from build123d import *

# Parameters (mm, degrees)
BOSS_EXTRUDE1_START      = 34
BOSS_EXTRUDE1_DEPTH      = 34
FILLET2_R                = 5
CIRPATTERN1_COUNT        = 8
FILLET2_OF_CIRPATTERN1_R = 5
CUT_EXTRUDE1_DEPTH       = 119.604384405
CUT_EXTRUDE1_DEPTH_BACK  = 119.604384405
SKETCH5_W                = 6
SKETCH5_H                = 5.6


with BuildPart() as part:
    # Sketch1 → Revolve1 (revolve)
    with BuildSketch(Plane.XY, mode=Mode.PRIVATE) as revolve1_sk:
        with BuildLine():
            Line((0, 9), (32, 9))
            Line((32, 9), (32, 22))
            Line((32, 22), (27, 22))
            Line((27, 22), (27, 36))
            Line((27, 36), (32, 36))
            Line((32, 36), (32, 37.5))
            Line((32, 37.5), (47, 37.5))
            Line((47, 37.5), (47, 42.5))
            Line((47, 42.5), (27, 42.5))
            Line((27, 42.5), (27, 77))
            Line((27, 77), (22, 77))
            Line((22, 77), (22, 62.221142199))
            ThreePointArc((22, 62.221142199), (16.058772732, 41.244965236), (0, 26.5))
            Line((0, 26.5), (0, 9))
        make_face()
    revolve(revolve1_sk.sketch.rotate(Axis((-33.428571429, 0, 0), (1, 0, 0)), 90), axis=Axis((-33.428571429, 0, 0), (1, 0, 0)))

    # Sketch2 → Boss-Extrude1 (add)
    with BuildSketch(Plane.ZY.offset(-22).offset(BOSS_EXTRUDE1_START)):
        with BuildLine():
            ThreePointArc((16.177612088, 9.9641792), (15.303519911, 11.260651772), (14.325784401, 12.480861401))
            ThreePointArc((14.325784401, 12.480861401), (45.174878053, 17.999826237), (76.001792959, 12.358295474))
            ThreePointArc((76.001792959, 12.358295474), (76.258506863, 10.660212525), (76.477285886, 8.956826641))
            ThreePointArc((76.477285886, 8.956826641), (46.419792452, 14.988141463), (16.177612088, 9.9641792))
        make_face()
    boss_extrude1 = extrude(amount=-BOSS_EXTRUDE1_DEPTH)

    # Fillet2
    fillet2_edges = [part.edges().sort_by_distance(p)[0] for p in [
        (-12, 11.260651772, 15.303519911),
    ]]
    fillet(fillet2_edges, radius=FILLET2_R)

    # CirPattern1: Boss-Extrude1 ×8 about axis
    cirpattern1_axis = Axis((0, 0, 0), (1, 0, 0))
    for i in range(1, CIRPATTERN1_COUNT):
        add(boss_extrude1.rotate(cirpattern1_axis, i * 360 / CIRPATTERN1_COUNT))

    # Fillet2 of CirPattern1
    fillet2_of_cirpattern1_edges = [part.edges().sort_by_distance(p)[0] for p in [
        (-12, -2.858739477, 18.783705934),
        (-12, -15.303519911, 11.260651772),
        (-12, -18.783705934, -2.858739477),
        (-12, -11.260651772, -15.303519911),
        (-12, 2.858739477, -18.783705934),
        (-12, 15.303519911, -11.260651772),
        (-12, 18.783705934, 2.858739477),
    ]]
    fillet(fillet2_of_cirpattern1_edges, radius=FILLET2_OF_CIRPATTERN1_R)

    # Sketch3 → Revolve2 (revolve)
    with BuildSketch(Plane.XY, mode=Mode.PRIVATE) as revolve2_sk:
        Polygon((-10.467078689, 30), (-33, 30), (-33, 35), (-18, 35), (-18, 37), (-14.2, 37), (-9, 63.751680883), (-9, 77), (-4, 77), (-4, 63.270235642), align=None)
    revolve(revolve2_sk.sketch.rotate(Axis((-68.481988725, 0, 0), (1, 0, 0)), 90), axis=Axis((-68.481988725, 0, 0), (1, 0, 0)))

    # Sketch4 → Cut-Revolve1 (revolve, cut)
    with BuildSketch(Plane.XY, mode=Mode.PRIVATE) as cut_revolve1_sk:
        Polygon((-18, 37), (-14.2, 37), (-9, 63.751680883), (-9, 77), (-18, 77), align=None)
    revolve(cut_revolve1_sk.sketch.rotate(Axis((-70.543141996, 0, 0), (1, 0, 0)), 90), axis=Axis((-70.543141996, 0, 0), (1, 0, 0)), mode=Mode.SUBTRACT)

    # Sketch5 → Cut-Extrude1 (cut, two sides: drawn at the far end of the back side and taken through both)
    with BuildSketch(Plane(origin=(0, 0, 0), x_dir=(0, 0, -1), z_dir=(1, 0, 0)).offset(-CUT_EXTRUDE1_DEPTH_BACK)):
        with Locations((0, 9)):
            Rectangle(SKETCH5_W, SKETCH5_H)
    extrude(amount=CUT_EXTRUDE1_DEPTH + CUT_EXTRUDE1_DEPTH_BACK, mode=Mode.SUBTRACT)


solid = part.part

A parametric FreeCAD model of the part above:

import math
import FreeCAD as App
import Part
import Sketcher
Q = App.Units.Quantity


def edges_at(feature, points):
    """Names of the edges that pass closest to the given points."""
    edges = feature.Shape.Edges
    near = lambda p: min(range(len(edges)), key=lambda i: edges[i].distToShape(Part.Vertex(*p))[0])
    return sorted({f"Edge{near(p) + 1}" for p in points})


def add_polygon(sketch, points):
    """Adds a closed chain of lines whose ends are joined by coincident constraints."""
    first, n = sketch.GeometryCount, len(points)
    for a, b in zip(points, points[1:] + points[:1]):
        sketch.addGeometry(Part.LineSegment(App.Vector(*a, 0), App.Vector(*b, 0)), False)
    for i in range(n):
        sketch.addConstraint(Sketcher.Constraint("Coincident", first + i, 2, first + (i + 1) % n, 1))

doc = App.newDocument("Part")
body = doc.addObject("PartDesign::Body", "Body")

# Sketch on XY plane
sketch1 = body.newObject("Sketcher::SketchObject", "Sketch")
sketch1.AttachmentSupport = (doc.getObject("XY_Plane"), [""])
sketch1.MapMode = "FlatFace"
sketch1.addGeometry([
    Part.LineSegment(App.Vector(0, 9, 0), App.Vector(32, 9, 0)),  # 0
    Part.LineSegment(App.Vector(32, 9, 0), App.Vector(32, 22, 0)),  # 1
    Part.LineSegment(App.Vector(32, 22, 0), App.Vector(27, 22, 0)),  # 2
    Part.LineSegment(App.Vector(27, 22, 0), App.Vector(27, 36, 0)),  # 3
    Part.LineSegment(App.Vector(27, 36, 0), App.Vector(32, 36, 0)),  # 4
    Part.LineSegment(App.Vector(32, 36, 0), App.Vector(32, 37.5, 0)),  # 5
    Part.LineSegment(App.Vector(32, 37.5, 0), App.Vector(47, 37.5, 0)),  # 6
    Part.LineSegment(App.Vector(47, 37.5, 0), App.Vector(47, 42.5, 0)),  # 7
    Part.LineSegment(App.Vector(47, 42.5, 0), App.Vector(27, 42.5, 0)),  # 8
    Part.LineSegment(App.Vector(27, 42.5, 0), App.Vector(27, 77, 0)),  # 9
    Part.LineSegment(App.Vector(27, 77, 0), App.Vector(22, 77, 0)),  # 10
    Part.LineSegment(App.Vector(22, 77, 0), App.Vector(22, 62.2, 0)),  # 11
    Part.ArcOfCircle(Part.Circle(App.Vector(-18, 62.2, 0), App.Vector(0, 0, 1), 40), math.radians(-63), math.radians(0)),  # 12
    Part.LineSegment(App.Vector(0, 26.5, 0), App.Vector(0, 9, 0)),  # 13
], False)
sketch1.addConstraint([
    Sketcher.Constraint("Coincident", 0, 2, 1, 1),
    Sketcher.Constraint("Coincident", 1, 2, 2, 1),
    Sketcher.Constraint("Coincident", 2, 2, 3, 1),
    Sketcher.Constraint("Coincident", 3, 2, 4, 1),
    Sketcher.Constraint("Coincident", 4, 2, 5, 1),
    Sketcher.Constraint("Coincident", 5, 2, 6, 1),
    Sketcher.Constraint("Coincident", 6, 2, 7, 1),
    Sketcher.Constraint("Coincident", 7, 2, 8, 1),
    Sketcher.Constraint("Coincident", 8, 2, 9, 1),
    Sketcher.Constraint("Coincident", 9, 2, 10, 1),
    Sketcher.Constraint("Coincident", 10, 2, 11, 1),
    Sketcher.Constraint("Tangent", 11, 2, 12, 2),
    Sketcher.Constraint("Coincident", 12, 1, 13, 1),
    Sketcher.Constraint("Coincident", 13, 2, 0, 1),
    Sketcher.Constraint("Horizontal", 0),
    Sketcher.Constraint("Vertical", 1),
    Sketcher.Constraint("Horizontal", 2),
    Sketcher.Constraint("Vertical", 3),
    Sketcher.Constraint("Horizontal", 4),
    Sketcher.Constraint("Vertical", 5),
    Sketcher.Constraint("Horizontal", 6),
    Sketcher.Constraint("Vertical", 7),
    Sketcher.Constraint("Horizontal", 8),
    Sketcher.Constraint("Vertical", 9),
    Sketcher.Constraint("Horizontal", 10),
    Sketcher.Constraint("Vertical", 11),
    Sketcher.Constraint("Vertical", 13),
    Sketcher.Constraint("PointOnObject", 12, 1, -2),
    Sketcher.Constraint("Vertical", 1, 2, 4, 2),
    Sketcher.Constraint("Vertical", 3, 2, 8, 2),
    Sketcher.Constraint("Equal", 4, 10),
    Sketcher.Constraint("Equal", 10, 7),
    Sketcher.Constraint("Radius", 12, 40.0),
    Sketcher.Constraint("DistanceX", 0, 1, 0, 2, 32.0),
    Sketcher.Constraint("DistanceX", 2, 2, 2, 1, 5.0),
    Sketcher.Constraint("DistanceX", 6, 1, 6, 2, 15.0),
    Sketcher.Constraint("DistanceY", 1, 1, 1, 2, 13.0),
    Sketcher.Constraint("DistanceY", 3, 1, 3, 2, 14.0),
    Sketcher.Constraint("DistanceY", 5, 1, 5, 2, 1.5),
    Sketcher.Constraint("DistanceY", 9, 1, 9, 2, 34.5),
    Sketcher.Constraint("DistanceY", 13, 2, 13, 1, 17.5),
    Sketcher.Constraint("DistanceY", -1, 1, 0, 2, 9.0),
])
revolution = body.newObject("PartDesign::Revolution", "Revolution")
revolution.Profile = sketch1
revolution.ReferenceAxis = (sketch1, ["H_Axis"])
revolution.Angle = 360

# Sketch on YZ plane
sketch2 = body.newObject("Sketcher::SketchObject", "Sketch001")
sketch2.AttachmentSupport = (doc.getObject("YZ_Plane"), [""])
sketch2.MapMode = "FlatFace"
sketch2.AttachmentOffset = App.Placement(App.Vector(0, 0, -12), App.Rotation())
sketch2.addGeometry([
    Part.ArcOfCircle(Part.Circle(App.Vector(0, 0, 0), App.Vector(0, 0, 1), 19), math.radians(48.94), math.radians(58.37)),
    Part.ArcOfCircle(Part.Circle(App.Vector(-70, 45, 0), App.Vector(0, 0, 1), 85), math.radians(-20), math.radians(22)),
    Part.ArcOfCircle(Part.Circle(App.Vector(0, 0, 0), App.Vector(0, 0, 1), 77), math.radians(80.76), math.radians(83.32)),
    Part.ArcOfCircle(Part.Circle(App.Vector(-70, 45, 0), App.Vector(0, 0, 1), 88), math.radians(-20), math.radians(21)),
], False)
sketch2.addConstraint([
    Sketcher.Constraint("Coincident", 0, 2, 1, 1),
    Sketcher.Constraint("Coincident", 1, 2, 2, 2),
    Sketcher.Constraint("Coincident", 2, 1, 3, 2),
    Sketcher.Constraint("Coincident", 3, 1, 0, 1),
    Sketcher.Constraint("Coincident", 0, 3, -1, 1),
    Sketcher.Constraint("Coincident", 2, 3, -1, 1),
    Sketcher.Constraint("Coincident", 3, 3, 1, 3),
    Sketcher.Constraint("Radius", 0, 19.0),
    Sketcher.Constraint("Radius", 1, 85.0),
    Sketcher.Constraint("Radius", 2, 76.999998),
    Sketcher.Constraint("Radius", 3, 88.0),
    Sketcher.Constraint("DistanceX", 1, 3, -1, 1, 70.0),
    Sketcher.Constraint("DistanceY", -1, 1, 1, 3, 45.0),
])
pad1 = body.newObject("PartDesign::Pad", "Pad")
pad1.Profile = sketch2
pad1.Length = 34
doc.recompute()

fillet = body.newObject("PartDesign::Fillet", "Fillet")
fillet.Base = (pad1, edges_at(pad1, [(-12, 11.261, 15.304)]))
fillet.Radius = 5
doc.recompute()

polarpattern = body.newObject("PartDesign::PolarPattern", "PolarPattern")
polarpattern.Originals = [pad1]
polarpattern.Axis = (doc.getObject("X_Axis"), [""])
polarpattern.Angle = 360
polarpattern.Occurrences = 8
body.Tip = polarpattern
doc.recompute()

fillet2 = body.newObject("PartDesign::Fillet", "Fillet001")
fillet2.Base = (polarpattern, edges_at(polarpattern, [
    (-12, -2.859, 18.784),
    (-12, -15.304, 11.261),
    (-12, -18.784, -2.859),
    (-12, -11.261, -15.304),
    (-12, 2.859, -18.784),
    (-12, 15.304, -11.261),
    (-12, 18.784, 2.859),
]))
fillet2.Radius = 5

# Sketch on XY plane
sketch3 = body.newObject("Sketcher::SketchObject", "Sketch002")
sketch3.AttachmentSupport = (doc.getObject("XY_Plane"), [""])
sketch3.MapMode = "FlatFace"
add_polygon(sketch3, [(-33, 30), (-10.5, 30), (-4, 63.3), (-4, 77), (-9, 77), (-9, 63.8), (-14.2, 37), (-18, 37), (-18, 35), (-33, 35)])  # lines 0-9
sketch3.addConstraint([
    Sketcher.Constraint("Horizontal", 0),
    Sketcher.Constraint("Vertical", 2),
    Sketcher.Constraint("Horizontal", 3),
    Sketcher.Constraint("Vertical", 4),
    Sketcher.Constraint("Horizontal", 6),
    Sketcher.Constraint("Vertical", 7),
    Sketcher.Constraint("Horizontal", 8),
    Sketcher.Constraint("Vertical", 9),
    Sketcher.Constraint("Parallel", 1, 5),
    Sketcher.Constraint("Equal", 3, 9),
    Sketcher.Constraint("DistanceX", 3, 2, 3, 1, 5.0),
    Sketcher.Constraint("DistanceX", 8, 2, 8, 1, 15.0),
    Sketcher.Constraint("DistanceY", 7, 2, 7, 1, 2.0),
    Sketcher.Constraint("Angle", 1, Q("79 deg")),
    Sketcher.Constraint("DistanceX", 6, 2, 6, 1, 3.8),
    Sketcher.Constraint("DistanceY", -1, 1, 0, 2, 30.0),
    Sketcher.Constraint("DistanceX", 1, 2, -1, 1, 4.0),
    Sketcher.Constraint("DistanceY", -1, 1, 2, 2, 77.0),
    Sketcher.Constraint("DistanceX", 6, 2, -1, 1, 18.0),
    Sketcher.Constraint("DistanceX", 0, 1, 0, 2, 22.532921),
])
revolution2 = body.newObject("PartDesign::Revolution", "Revolution001")
revolution2.Profile = sketch3
revolution2.ReferenceAxis = (sketch3, ["H_Axis"])
revolution2.Angle = 360

# Sketch on XY plane
sketch4 = body.newObject("Sketcher::SketchObject", "Sketch003")
sketch4.AttachmentSupport = (doc.getObject("XY_Plane"), [""])
sketch4.MapMode = "FlatFace"
add_polygon(sketch4, [(-18, 37), (-14.2, 37), (-9, 63.8), (-9, 77), (-18, 77)])  # lines 0-4
sketch4.addConstraint([
    Sketcher.Constraint("Horizontal", 0),
    Sketcher.Constraint("Vertical", 2),
    Sketcher.Constraint("Horizontal", 3),
    Sketcher.Constraint("Vertical", 4),
    Sketcher.Constraint("DistanceX", 3, 2, 3, 1, 9.0),
    Sketcher.Constraint("DistanceY", 4, 2, 4, 1, 40.0),
    Sketcher.Constraint("Angle", 1, Q("79 deg")),
    Sketcher.Constraint("DistanceX", 0, 1, 0, 2, 3.8),
    Sketcher.Constraint("DistanceY", -1, 1, 0, 2, 37.0),
    Sketcher.Constraint("DistanceX", 1, 2, -1, 1, 9.0),
])
groove = body.newObject("PartDesign::Groove", "Groove")
groove.Profile = sketch4
groove.ReferenceAxis = (sketch4, ["H_Axis"])
groove.Angle = 360

# Sketch on YZ plane
sketch5 = body.newObject("Sketcher::SketchObject", "Sketch004")
sketch5.AttachmentSupport = (doc.getObject("YZ_Plane"), [""])
sketch5.MapMode = "FlatFace"
add_polygon(sketch5, [(12, 3), (6, 3), (6, -3), (12, -3)])  # lines 0-3
sketch5.addConstraint([
    Sketcher.Constraint("Horizontal", 0),
    Sketcher.Constraint("Vertical", 1),
    Sketcher.Constraint("Horizontal", 2),
    Sketcher.Constraint("Vertical", 3),
    Sketcher.Constraint("DistanceY", 1, 2, 1, 1, 6.0),
    Sketcher.Constraint("DistanceX", 0, 2, 0, 1, 5.6),
    Sketcher.Constraint("DistanceY", -1, 1, 0, 2, 3.0),
    Sketcher.Constraint("DistanceX", -1, 1, 0, 2, 6.2),
])
pocket1 = body.newObject("PartDesign::Pocket", "Pocket")
pocket1.Profile = sketch5
pocket1.Type = "ThroughAll"
pocket1.Midplane = True

doc.recompute()
